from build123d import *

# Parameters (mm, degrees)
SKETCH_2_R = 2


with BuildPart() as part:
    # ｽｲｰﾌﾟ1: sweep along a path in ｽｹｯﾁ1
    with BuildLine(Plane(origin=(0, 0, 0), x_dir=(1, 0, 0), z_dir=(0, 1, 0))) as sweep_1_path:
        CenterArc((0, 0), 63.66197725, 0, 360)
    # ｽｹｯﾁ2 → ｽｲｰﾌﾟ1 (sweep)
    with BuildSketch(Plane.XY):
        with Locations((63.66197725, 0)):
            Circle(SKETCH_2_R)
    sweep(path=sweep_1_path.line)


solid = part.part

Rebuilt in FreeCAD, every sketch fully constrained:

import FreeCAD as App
import Part
import Sketcher
from FreeCAD import Vector

doc = App.newDocument("Part")
body = doc.addObject("PartDesign::Body", "Body")

sketch1 = body.newObject("Sketcher::SketchObject", "Sketch")
sketch1.AttachmentSupport = (doc.getObject("XY_Plane"), [""])
sketch1.MapMode = "FlatFace"
sketch1.addGeometry(Part.Circle(Vector(63.7, 0, 0), Vector(0, 0, 1), 2), False)
sketch1.addConstraint(Sketcher.Constraint("PointOnObject", 0, 3, -1))
sketch1.addConstraint(Sketcher.Constraint("Diameter", 0, 4.0))
sketch1.addConstraint(Sketcher.Constraint("DistanceX", -1, 1, 0, 3, 63.661977))

sketch2 = body.newObject("Sketcher::SketchObject", "Sketch001")
sketch2.AttachmentSupport = (doc.getObject("XZ_Plane"), [""])
sketch2.MapMode = "FlatFace"
sketch2.addGeometry(Part.Circle(Vector(0, 0, 0), Vector(0, 0, 1), 64), False)
sketch2.addConstraint(Sketcher.Constraint("Coincident", 0, 3, -1, 1))
sketch2.addConstraint(Sketcher.Constraint("Diameter", 0, 127.323954))
doc.recompute()

additivepipe = body.newObject("PartDesign::AdditivePipe", "AdditivePipe")
additivepipe.Profile = sketch1
additivepipe.Spine = (sketch2, ["Edge1"])

doc.recompute()
